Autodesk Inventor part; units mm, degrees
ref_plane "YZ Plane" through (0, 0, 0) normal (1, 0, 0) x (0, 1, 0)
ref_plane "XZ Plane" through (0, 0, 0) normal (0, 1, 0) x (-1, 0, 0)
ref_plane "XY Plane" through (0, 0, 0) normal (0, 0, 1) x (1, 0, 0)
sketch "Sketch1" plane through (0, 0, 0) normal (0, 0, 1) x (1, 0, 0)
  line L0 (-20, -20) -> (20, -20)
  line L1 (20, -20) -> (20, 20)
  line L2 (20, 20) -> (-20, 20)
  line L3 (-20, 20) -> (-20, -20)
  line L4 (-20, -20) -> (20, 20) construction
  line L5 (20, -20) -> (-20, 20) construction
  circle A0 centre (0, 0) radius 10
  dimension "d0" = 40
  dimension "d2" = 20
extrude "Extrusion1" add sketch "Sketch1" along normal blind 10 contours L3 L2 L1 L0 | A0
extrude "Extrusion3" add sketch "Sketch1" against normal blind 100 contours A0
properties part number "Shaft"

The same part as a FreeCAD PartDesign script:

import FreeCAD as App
import Part
import Sketcher
from FreeCAD import Vector
Q = App.Units.Quantity


def add_polygon(sketch, points):
    """Adds a closed chain of lines whose ends are joined by coincident constraints."""
    first, n = sketch.GeometryCount, len(points)
    for a, b in zip(points, points[1:] + points[:1]):
        sketch.addGeometry(Part.LineSegment(App.Vector(*a, 0), App.Vector(*b, 0)), False)
    for i in range(n):
        sketch.addConstraint(Sketcher.Constraint("Coincident", first + i, 2, first + (i + 1) % n, 1))

doc = App.newDocument("Part")
body = doc.addObject("PartDesign::Body", "Body")

sketch1 = body.newObject("Sketcher::SketchObject", "Sketch")
sketch1.AttachmentSupport = (doc.getObject("XY_Plane"), [""])
sketch1.MapMode = "FlatFace"
add_polygon(sketch1, [(-20, 20), (-20, -20), (20, -20), (20, 20)])
sketch1.addConstraint(Sketcher.Constraint("Vertical", 0))
sketch1.addConstraint(Sketcher.Constraint("Horizontal", 1))
sketch1.addConstraint(Sketcher.Constraint("Vertical", 2))
sketch1.addConstraint(Sketcher.Constraint("Horizontal", 3))
sketch1.addConstraint(Sketcher.Constraint("Symmetric", 0, 2, 2, 2, -1, 1))
sketch1.addConstraint(Sketcher.Constraint("Equal", 3, 0))
sketch1.addConstraint(Sketcher.Constraint("DistanceX", 1, 1, 1, 2, Q("1.5748 in")))
pad1 = body.newObject("PartDesign::Pad", "Pad")
pad1.Profile = sketch1
pad1.Length = Q("0.3937008 in")

sketch2 = body.newObject("Sketcher::SketchObject", "Sketch001")
sketch2.AttachmentSupport = (doc.getObject("XY_Plane"), [""])
sketch2.MapMode = "FlatFace"
sketch2.addGeometry(Part.Circle(Vector(0, 0, 0), Vector(0, 0, 1), 10), False)
sketch2.addConstraint(Sketcher.Constraint("Coincident", 0, 3, -1, 1))
sketch2.addConstraint(Sketcher.Constraint("Diameter", 0, Q("0.7874 in")))
pad2 = body.newObject("PartDesign::Pad", "Pad001")
pad2.Profile = sketch2
pad2.Length = Q("3.9370079 in")
pad2.Reversed = True

doc.recompute()
